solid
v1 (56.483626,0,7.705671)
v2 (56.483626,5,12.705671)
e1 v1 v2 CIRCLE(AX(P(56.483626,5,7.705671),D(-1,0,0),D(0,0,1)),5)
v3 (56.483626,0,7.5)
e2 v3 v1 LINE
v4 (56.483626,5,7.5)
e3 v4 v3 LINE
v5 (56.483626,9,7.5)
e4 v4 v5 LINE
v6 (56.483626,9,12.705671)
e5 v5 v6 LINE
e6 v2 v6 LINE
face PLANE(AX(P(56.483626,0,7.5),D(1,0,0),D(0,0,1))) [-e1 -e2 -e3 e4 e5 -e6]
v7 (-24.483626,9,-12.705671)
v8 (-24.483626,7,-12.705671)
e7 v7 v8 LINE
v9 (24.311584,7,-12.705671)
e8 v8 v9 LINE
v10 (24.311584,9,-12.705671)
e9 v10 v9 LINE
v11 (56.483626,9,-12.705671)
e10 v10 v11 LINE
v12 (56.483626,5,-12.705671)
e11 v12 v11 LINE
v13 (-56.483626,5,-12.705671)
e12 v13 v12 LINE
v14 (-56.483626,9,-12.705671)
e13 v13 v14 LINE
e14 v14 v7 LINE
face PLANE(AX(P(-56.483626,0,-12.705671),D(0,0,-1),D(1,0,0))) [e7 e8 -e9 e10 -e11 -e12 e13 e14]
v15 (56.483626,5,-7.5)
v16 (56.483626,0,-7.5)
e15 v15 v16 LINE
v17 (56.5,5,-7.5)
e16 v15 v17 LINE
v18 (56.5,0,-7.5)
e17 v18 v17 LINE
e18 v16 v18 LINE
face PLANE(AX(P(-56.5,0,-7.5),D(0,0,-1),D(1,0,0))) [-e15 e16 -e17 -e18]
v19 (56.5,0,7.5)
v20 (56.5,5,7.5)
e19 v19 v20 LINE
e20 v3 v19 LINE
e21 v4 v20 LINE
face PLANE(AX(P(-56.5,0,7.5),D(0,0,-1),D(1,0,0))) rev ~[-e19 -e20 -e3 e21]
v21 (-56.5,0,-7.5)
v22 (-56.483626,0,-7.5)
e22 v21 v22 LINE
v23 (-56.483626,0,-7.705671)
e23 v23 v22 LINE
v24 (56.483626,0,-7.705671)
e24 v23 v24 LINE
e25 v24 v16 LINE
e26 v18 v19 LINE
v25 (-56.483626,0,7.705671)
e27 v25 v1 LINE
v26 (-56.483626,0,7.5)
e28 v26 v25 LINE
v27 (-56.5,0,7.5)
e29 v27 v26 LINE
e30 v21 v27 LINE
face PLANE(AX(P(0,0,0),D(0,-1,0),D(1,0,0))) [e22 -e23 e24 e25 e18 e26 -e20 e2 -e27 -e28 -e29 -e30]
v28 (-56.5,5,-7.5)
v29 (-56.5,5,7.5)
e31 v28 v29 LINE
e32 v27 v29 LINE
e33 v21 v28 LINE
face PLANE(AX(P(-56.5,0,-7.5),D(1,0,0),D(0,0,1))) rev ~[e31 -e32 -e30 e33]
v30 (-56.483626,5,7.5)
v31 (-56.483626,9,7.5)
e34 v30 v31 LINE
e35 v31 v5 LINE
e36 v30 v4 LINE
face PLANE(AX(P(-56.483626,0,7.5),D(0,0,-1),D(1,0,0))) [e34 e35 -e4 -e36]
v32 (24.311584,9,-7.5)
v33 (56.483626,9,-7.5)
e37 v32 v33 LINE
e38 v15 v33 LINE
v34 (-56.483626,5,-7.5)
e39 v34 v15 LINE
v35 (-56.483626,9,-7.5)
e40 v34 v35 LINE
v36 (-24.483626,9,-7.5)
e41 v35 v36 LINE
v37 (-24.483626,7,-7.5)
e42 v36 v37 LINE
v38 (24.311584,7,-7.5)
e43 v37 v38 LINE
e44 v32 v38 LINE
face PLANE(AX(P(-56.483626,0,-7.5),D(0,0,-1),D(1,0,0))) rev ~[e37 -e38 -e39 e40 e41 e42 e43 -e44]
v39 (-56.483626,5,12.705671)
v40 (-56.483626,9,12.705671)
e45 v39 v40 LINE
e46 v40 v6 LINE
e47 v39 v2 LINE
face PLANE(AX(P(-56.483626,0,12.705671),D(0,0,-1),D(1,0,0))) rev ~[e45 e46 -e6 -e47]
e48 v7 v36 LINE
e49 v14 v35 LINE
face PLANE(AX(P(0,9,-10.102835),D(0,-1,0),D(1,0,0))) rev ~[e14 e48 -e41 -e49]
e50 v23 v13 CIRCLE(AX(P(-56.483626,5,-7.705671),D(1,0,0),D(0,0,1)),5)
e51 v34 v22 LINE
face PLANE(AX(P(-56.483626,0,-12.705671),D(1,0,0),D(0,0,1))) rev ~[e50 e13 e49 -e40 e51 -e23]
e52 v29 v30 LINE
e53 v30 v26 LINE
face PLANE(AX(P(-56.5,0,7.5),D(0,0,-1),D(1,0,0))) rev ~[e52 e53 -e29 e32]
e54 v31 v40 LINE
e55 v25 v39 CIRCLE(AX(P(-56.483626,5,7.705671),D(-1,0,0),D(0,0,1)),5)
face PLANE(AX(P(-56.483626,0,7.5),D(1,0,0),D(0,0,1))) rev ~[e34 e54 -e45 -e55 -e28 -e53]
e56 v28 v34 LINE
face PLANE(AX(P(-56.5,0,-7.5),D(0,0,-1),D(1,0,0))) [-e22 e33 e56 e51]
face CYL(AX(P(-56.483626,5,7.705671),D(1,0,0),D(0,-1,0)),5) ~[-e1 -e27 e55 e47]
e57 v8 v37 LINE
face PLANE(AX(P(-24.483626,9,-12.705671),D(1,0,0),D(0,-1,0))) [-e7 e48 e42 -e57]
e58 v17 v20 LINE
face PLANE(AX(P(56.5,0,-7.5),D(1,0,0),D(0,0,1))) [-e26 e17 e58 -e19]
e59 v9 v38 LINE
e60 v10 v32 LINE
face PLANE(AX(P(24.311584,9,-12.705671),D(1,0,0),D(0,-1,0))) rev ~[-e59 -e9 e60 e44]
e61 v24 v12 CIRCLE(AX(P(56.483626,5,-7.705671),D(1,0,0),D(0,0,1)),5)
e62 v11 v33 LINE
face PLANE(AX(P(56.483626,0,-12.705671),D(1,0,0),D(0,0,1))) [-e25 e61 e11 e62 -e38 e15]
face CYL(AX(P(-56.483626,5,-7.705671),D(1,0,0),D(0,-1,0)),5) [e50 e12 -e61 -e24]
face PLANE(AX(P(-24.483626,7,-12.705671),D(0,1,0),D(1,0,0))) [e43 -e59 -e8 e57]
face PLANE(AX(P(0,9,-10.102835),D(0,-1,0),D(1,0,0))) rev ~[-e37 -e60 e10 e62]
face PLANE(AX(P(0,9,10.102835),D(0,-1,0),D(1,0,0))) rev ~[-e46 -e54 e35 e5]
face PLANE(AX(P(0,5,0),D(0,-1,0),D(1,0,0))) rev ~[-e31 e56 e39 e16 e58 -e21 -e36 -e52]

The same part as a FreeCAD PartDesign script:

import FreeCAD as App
import Part
import Sketcher

V = App.Vector


def edges_at(feature, points):
    """Names of the edges that pass closest to the given points."""
    edges = feature.Shape.Edges
    near = lambda p: min(range(len(edges)), key=lambda i: edges[i].distToShape(Part.Vertex(*p))[0])
    return sorted({f"Edge{near(p) + 1}" for p in points})


def add_polygon(sketch, points):
    """Adds a closed chain of lines whose ends are joined by coincident constraints."""
    first, n = sketch.GeometryCount, len(points)
    for a, b in zip(points, points[1:] + points[:1]):
        sketch.addGeometry(Part.LineSegment(App.Vector(*a, 0), App.Vector(*b, 0)), False)
    for i in range(n):
        sketch.addConstraint(Sketcher.Constraint("Coincident", first + i, 2, first + (i + 1) % n, 1))

doc = App.newDocument("Part")
params = doc.addObject("Spreadsheet::Sheet", "Params")
for row, (alias, value) in enumerate([
    ("sketch1_width", "113 mm"),
    ("sketch1_height", "15 mm"),
    ("pad1_length", "5 mm"),
    ("pad2_length", "9 mm"),
    ("fillet_radius", "5 mm"),
    ("sketch3_height", "2 mm"),
    ("pocket1_length", "10 mm"),
], start=1):
    params.set(f"A{row}", alias)
    params.set(f"B{row}", "=" + value)
    params.setAlias(f"B{row}", alias)

body = doc.addObject("PartDesign::Body", "Body")

# Sketch on XZ plane
sketch1 = body.newObject("Sketcher::SketchObject", "Sketch")
sketch1.AttachmentSupport = (doc.getObject("XZ_Plane"), [""])
sketch1.MapMode = "FlatFace"
add_polygon(sketch1, [(-56.5, 7.5), (-56.5, -7.5), (56.5, -7.5), (56.5, 7.5)])  # lines 0-3
sketch1.addConstraint([
    Sketcher.Constraint("Vertical", 0),
    Sketcher.Constraint("Horizontal", 1),
    Sketcher.Constraint("Vertical", 2),
    Sketcher.Constraint("Horizontal", 3),
    Sketcher.Constraint("Symmetric", 0, 2, 2, 2, -1, 1),
    Sketcher.Constraint("DistanceX", 1, 1, 1, 2, 113.0),
    Sketcher.Constraint("DistanceY", 0, 2, 0, 1, 15.0),
])
sketch1.setExpression("Constraints[9]", "Params.sketch1_width")
sketch1.setExpression("Constraints[10]", "Params.sketch1_height")
pad1 = body.newObject("PartDesign::Pad", "Pad")
pad1.Profile = sketch1
pad1.setExpression("Length", "Params.pad1_length")
pad1.Reversed = True

# Sketch on XZ plane
sketch2 = body.newObject("Sketcher::SketchObject", "Sketch001")
sketch2.AttachmentSupport = (doc.getObject("XZ_Plane"), [""])
sketch2.MapMode = "FlatFace"
add_polygon(sketch2, [(-56.483626, 12.705671), (-56.483626, 7.5), (56.483626, 7.5), (56.483626, 12.705671)])  # lines 0-3
add_polygon(sketch2, [(-56.483626, -7.5), (-56.483626, -12.705671), (56.483626, -12.705671), (56.483626, -7.5)])  # lines 4-7
sketch2.addConstraint([
    Sketcher.Constraint("Vertical", 0),
    Sketcher.Constraint("Horizontal", 1),
    Sketcher.Constraint("Vertical", 2),
    Sketcher.Constraint("Horizontal", 3),
    Sketcher.Constraint("Vertical", 4),
    Sketcher.Constraint("Horizontal", 5),
    Sketcher.Constraint("Vertical", 6),
    Sketcher.Constraint("Horizontal", 7),
    Sketcher.Constraint("Symmetric", 2, 2, 4, 2, -1, 1),
    Sketcher.Constraint("Symmetric", 0, 2, 6, 2, -1, 1),
    Sketcher.Constraint("Vertical", 3, 2, 4, 2),
    Sketcher.Constraint("DistanceY", 6, 2, 1, 2, 14.999999),
    Sketcher.Constraint("DistanceX", 1, 1, 1, 2, 112.967252),
    Sketcher.Constraint("DistanceY", 0, 2, 0, 1, 5.205671),
])
pad2 = body.newObject("PartDesign::Pad", "Pad001")
pad2.Profile = sketch2
pad2.setExpression("Length", "Params.pad2_length")
pad2.Reversed = True
doc.recompute()

fillet = body.newObject("PartDesign::Fillet", "Fillet")
fillet.Base = (pad2, edges_at(pad2, [(0, 0, 12.706), (0, 0, -12.706)]))
fillet.setExpression("Radius", "Params.fillet_radius")

# Sketch on XY plane
sketch3 = body.newObject("Sketcher::SketchObject", "Sketch002")
sketch3.AttachmentSupport = (doc.getObject("XY_Plane"), [""])
sketch3.MapMode = "FlatFace"
sketch3.AttachmentOffset = App.Placement(V(0, 0, -12.705671), App.Rotation())
add_polygon(sketch3, [(-24.483626, 7), (-24.483626, 9), (24.311584, 9), (24.311584, 7)])  # lines 0-3
sketch3.addConstraint([
    Sketcher.Constraint("Vertical", 0),
    Sketcher.Constraint("Horizontal", 1),
    Sketcher.Constraint("Vertical", 2),
    Sketcher.Constraint("Horizontal", 3),
    Sketcher.Constraint("DistanceY", 0, 1, 0, 2, 2.0),
    Sketcher.Constraint("DistanceY", -1, 1, 0, 2, 9.0),
    Sketcher.Constraint("DistanceX", 1, 1, 1, 2, 48.795211),
    Sketcher.Constraint("DistanceX", 0, 2, -1, 1, 24.483626),
])
sketch3.setExpression("Constraints[8]", "Params.sketch3_height")
pocket1 = body.newObject("PartDesign::Pocket", "Pocket")
pocket1.Profile = sketch3
pocket1.setExpression("Length", "Params.pocket1_length")
pocket1.Reversed = True

doc.recompute()
